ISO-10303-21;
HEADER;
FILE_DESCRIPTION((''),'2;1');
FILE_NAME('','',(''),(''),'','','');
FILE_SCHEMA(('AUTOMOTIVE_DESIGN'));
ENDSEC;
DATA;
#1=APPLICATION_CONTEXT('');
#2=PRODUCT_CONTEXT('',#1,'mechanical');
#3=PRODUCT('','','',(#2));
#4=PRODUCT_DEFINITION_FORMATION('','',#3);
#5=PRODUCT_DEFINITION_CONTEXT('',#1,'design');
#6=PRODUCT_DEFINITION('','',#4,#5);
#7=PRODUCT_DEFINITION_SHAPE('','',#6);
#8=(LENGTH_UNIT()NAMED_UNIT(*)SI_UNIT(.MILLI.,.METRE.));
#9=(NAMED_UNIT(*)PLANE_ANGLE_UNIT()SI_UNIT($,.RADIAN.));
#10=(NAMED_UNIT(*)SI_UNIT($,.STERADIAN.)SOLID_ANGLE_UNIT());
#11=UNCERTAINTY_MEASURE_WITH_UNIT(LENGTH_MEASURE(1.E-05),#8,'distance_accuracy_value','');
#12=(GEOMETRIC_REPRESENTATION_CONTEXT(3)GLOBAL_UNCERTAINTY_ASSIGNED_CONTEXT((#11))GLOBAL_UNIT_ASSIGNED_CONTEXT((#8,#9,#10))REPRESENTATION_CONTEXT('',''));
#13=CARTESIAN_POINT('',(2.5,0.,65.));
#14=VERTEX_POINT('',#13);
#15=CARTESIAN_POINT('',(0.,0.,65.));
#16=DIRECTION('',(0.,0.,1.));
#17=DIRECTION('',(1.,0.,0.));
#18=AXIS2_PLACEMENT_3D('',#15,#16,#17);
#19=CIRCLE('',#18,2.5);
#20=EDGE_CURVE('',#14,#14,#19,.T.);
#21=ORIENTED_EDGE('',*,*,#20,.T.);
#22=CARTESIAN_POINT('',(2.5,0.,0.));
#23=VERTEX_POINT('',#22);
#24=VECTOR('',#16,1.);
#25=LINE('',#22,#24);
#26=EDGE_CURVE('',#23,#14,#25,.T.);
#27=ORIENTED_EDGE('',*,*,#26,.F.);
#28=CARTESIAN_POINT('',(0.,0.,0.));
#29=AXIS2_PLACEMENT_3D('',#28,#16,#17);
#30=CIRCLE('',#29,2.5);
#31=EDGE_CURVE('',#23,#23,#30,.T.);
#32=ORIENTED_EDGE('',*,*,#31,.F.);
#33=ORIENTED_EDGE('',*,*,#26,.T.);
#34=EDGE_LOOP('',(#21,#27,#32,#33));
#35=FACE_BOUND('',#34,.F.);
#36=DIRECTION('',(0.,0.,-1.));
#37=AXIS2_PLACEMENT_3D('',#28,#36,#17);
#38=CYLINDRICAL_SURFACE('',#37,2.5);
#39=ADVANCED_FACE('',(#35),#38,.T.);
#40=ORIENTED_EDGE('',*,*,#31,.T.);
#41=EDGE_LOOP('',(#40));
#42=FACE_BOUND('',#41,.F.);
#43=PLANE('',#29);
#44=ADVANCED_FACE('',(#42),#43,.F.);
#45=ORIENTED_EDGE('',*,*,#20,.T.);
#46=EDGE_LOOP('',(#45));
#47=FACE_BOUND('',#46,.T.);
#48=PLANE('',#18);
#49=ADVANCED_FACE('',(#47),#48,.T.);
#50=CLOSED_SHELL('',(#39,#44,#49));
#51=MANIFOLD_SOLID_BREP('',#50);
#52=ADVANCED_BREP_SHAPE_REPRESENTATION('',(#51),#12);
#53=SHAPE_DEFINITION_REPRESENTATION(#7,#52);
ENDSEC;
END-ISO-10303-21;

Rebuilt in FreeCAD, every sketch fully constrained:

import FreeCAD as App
import Part
import Sketcher
from FreeCAD import Vector

doc = App.newDocument("Part")
body = doc.addObject("PartDesign::Body", "Body")

# Sketch on XY plane
sketch1 = doc.addObject("Sketcher::SketchObject", "Sketch")
body.addObject(sketch1)
sketch1.AttachmentSupport = (doc.XY_Plane, [""])
sketch1.MapMode = "FlatFace"
sketch1.addGeometry(Part.Circle(Vector(0, 0, 0), Vector(0, 0, 1), 2.5), False)
sketch1.addConstraint([
    Sketcher.Constraint("Coincident", 0, 3, -1, 1),
    Sketcher.Constraint("Diameter", 0, 5.0),
])
pad1 = doc.addObject("PartDesign::Pad", "Pad")
body.addObject(pad1)
pad1.Profile = sketch1
pad1.Length = 65

doc.recompute()
